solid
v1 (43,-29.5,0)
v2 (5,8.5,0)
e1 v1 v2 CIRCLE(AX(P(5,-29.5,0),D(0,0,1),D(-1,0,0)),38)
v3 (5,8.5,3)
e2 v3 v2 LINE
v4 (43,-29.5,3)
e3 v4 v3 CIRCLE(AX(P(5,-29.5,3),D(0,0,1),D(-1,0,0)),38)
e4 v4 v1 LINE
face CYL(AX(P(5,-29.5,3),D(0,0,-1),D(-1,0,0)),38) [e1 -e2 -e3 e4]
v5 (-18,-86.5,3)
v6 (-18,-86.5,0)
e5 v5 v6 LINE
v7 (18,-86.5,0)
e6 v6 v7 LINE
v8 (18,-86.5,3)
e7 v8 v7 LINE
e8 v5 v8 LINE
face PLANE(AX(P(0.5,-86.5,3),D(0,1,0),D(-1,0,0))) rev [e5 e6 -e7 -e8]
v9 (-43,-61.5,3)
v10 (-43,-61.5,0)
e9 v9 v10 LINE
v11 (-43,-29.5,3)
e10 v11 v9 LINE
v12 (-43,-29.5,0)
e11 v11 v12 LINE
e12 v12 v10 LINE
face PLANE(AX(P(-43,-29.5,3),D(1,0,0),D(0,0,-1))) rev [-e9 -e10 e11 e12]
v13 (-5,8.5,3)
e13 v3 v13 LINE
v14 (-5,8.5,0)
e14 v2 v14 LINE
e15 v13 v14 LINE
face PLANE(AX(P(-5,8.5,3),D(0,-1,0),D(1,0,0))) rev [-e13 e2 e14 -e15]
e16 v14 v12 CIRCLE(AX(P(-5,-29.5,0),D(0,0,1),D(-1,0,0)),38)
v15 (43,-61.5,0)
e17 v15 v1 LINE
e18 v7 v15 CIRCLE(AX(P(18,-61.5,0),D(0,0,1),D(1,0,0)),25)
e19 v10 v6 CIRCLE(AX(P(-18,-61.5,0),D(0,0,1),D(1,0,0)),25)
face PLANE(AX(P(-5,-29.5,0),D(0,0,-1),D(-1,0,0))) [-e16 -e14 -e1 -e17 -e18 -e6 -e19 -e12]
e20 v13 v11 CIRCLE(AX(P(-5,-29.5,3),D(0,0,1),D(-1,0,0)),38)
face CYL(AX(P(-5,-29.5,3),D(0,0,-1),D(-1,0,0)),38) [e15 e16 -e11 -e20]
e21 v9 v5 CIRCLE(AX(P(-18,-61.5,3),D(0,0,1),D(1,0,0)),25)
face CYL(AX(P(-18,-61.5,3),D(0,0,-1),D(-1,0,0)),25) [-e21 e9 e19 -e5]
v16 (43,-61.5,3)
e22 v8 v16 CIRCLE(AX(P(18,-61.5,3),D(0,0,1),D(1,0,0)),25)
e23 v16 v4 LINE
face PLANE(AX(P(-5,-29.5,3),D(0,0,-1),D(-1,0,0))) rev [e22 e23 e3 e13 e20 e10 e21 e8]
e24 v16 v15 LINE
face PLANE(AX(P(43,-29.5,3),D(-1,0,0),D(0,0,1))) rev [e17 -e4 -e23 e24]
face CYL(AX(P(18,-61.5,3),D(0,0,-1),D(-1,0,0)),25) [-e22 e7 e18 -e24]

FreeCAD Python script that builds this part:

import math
import FreeCAD as App
import Part
import Sketcher
from FreeCAD import Vector

doc = App.newDocument("Part")
params = doc.addObject("Spreadsheet::Sheet", "Params")
for row, (alias, value) in enumerate([
    ("sketch1_radius", "38 mm"),
    ("sketch1_radius2", "25 mm"),
    ("sketch1_width", "10 mm"),
    ("sketch1_height", "32 mm"),
    ("pad1_length", "3 mm"),
], start=1):
    params.set(f"A{row}", alias)
    params.set(f"B{row}", "=" + value)
    params.setAlias(f"B{row}", alias)

body = doc.addObject("PartDesign::Body", "Body")

# Sketch on XY plane
sketch1 = body.newObject("Sketcher::SketchObject", "Sketch")
sketch1.AttachmentSupport = (doc.getObject("XY_Plane"), [""])
sketch1.MapMode = "FlatFace"
sketch1.addGeometry(Part.LineSegment(Vector(5, 8, 0), Vector(-5, 8, 0)), False)
sketch1.addGeometry(Part.ArcOfCircle(Part.Circle(Vector(-5, -30, 0), Vector(0, 0, 1), 38), math.radians(90), math.radians(180)), False)
sketch1.addGeometry(Part.LineSegment(Vector(-43, -30, 0), Vector(-43, -62, 0)), False)
sketch1.addGeometry(Part.ArcOfCircle(Part.Circle(Vector(-18, -62, 0), Vector(0, 0, 1), 25), math.radians(180), math.radians(270)), False)
sketch1.addGeometry(Part.LineSegment(Vector(-18, -86, 0), Vector(18, -86, 0)), False)
sketch1.addGeometry(Part.ArcOfCircle(Part.Circle(Vector(18, -62, 0), Vector(0, 0, 1), 25), math.radians(-90), math.radians(0)), False)
sketch1.addGeometry(Part.LineSegment(Vector(43, -62, 0), Vector(43, -30, 0)), False)
sketch1.addGeometry(Part.ArcOfCircle(Part.Circle(Vector(5, -30, 0), Vector(0, 0, 1), 38), math.radians(0), math.radians(90)), False)
sketch1.addConstraint(Sketcher.Constraint("Tangent", 0, 2, 1, 1))
sketch1.addConstraint(Sketcher.Constraint("Tangent", 1, 2, 2, 1))
sketch1.addConstraint(Sketcher.Constraint("Tangent", 2, 2, 3, 1))
sketch1.addConstraint(Sketcher.Constraint("Tangent", 3, 2, 4, 1))
sketch1.addConstraint(Sketcher.Constraint("Tangent", 4, 2, 5, 1))
sketch1.addConstraint(Sketcher.Constraint("Tangent", 5, 2, 6, 1))
sketch1.addConstraint(Sketcher.Constraint("Tangent", 6, 2, 7, 1))
sketch1.addConstraint(Sketcher.Constraint("Tangent", 7, 2, 0, 1))
sketch1.addConstraint(Sketcher.Constraint("Horizontal", 0))
sketch1.addConstraint(Sketcher.Constraint("Vertical", 2))
sketch1.addConstraint(Sketcher.Constraint("Horizontal", 4))
sketch1.addConstraint(Sketcher.Constraint("Vertical", 6))
sketch1.addConstraint(Sketcher.Constraint("Equal", 3, 5))
sketch1.addConstraint(Sketcher.Constraint("Equal", 1, 7))
sketch1.addConstraint(Sketcher.Constraint("Radius", 1, 38.0))
sketch1.addConstraint(Sketcher.Constraint("Radius", 3, 25.0))
sketch1.addConstraint(Sketcher.Constraint("DistanceX", 0, 2, 0, 1, 10.0))
sketch1.addConstraint(Sketcher.Constraint("DistanceY", 2, 2, 2, 1, 32.0))
sketch1.addConstraint(Sketcher.Constraint("DistanceX", 1, 3, -1, 1, 5.0))
sketch1.addConstraint(Sketcher.Constraint("DistanceY", 1, 3, -1, 1, 29.5))
sketch1.setExpression("Constraints[14]", "Params.sketch1_radius")
sketch1.setExpression("Constraints[15]", "Params.sketch1_radius2")
sketch1.setExpression("Constraints[16]", "Params.sketch1_width")
sketch1.setExpression("Constraints[17]", "Params.sketch1_height")
pad1 = body.newObject("PartDesign::Pad", "Pad")
pad1.Profile = sketch1
pad1.setExpression("Length", "Params.pad1_length")

doc.recompute()
